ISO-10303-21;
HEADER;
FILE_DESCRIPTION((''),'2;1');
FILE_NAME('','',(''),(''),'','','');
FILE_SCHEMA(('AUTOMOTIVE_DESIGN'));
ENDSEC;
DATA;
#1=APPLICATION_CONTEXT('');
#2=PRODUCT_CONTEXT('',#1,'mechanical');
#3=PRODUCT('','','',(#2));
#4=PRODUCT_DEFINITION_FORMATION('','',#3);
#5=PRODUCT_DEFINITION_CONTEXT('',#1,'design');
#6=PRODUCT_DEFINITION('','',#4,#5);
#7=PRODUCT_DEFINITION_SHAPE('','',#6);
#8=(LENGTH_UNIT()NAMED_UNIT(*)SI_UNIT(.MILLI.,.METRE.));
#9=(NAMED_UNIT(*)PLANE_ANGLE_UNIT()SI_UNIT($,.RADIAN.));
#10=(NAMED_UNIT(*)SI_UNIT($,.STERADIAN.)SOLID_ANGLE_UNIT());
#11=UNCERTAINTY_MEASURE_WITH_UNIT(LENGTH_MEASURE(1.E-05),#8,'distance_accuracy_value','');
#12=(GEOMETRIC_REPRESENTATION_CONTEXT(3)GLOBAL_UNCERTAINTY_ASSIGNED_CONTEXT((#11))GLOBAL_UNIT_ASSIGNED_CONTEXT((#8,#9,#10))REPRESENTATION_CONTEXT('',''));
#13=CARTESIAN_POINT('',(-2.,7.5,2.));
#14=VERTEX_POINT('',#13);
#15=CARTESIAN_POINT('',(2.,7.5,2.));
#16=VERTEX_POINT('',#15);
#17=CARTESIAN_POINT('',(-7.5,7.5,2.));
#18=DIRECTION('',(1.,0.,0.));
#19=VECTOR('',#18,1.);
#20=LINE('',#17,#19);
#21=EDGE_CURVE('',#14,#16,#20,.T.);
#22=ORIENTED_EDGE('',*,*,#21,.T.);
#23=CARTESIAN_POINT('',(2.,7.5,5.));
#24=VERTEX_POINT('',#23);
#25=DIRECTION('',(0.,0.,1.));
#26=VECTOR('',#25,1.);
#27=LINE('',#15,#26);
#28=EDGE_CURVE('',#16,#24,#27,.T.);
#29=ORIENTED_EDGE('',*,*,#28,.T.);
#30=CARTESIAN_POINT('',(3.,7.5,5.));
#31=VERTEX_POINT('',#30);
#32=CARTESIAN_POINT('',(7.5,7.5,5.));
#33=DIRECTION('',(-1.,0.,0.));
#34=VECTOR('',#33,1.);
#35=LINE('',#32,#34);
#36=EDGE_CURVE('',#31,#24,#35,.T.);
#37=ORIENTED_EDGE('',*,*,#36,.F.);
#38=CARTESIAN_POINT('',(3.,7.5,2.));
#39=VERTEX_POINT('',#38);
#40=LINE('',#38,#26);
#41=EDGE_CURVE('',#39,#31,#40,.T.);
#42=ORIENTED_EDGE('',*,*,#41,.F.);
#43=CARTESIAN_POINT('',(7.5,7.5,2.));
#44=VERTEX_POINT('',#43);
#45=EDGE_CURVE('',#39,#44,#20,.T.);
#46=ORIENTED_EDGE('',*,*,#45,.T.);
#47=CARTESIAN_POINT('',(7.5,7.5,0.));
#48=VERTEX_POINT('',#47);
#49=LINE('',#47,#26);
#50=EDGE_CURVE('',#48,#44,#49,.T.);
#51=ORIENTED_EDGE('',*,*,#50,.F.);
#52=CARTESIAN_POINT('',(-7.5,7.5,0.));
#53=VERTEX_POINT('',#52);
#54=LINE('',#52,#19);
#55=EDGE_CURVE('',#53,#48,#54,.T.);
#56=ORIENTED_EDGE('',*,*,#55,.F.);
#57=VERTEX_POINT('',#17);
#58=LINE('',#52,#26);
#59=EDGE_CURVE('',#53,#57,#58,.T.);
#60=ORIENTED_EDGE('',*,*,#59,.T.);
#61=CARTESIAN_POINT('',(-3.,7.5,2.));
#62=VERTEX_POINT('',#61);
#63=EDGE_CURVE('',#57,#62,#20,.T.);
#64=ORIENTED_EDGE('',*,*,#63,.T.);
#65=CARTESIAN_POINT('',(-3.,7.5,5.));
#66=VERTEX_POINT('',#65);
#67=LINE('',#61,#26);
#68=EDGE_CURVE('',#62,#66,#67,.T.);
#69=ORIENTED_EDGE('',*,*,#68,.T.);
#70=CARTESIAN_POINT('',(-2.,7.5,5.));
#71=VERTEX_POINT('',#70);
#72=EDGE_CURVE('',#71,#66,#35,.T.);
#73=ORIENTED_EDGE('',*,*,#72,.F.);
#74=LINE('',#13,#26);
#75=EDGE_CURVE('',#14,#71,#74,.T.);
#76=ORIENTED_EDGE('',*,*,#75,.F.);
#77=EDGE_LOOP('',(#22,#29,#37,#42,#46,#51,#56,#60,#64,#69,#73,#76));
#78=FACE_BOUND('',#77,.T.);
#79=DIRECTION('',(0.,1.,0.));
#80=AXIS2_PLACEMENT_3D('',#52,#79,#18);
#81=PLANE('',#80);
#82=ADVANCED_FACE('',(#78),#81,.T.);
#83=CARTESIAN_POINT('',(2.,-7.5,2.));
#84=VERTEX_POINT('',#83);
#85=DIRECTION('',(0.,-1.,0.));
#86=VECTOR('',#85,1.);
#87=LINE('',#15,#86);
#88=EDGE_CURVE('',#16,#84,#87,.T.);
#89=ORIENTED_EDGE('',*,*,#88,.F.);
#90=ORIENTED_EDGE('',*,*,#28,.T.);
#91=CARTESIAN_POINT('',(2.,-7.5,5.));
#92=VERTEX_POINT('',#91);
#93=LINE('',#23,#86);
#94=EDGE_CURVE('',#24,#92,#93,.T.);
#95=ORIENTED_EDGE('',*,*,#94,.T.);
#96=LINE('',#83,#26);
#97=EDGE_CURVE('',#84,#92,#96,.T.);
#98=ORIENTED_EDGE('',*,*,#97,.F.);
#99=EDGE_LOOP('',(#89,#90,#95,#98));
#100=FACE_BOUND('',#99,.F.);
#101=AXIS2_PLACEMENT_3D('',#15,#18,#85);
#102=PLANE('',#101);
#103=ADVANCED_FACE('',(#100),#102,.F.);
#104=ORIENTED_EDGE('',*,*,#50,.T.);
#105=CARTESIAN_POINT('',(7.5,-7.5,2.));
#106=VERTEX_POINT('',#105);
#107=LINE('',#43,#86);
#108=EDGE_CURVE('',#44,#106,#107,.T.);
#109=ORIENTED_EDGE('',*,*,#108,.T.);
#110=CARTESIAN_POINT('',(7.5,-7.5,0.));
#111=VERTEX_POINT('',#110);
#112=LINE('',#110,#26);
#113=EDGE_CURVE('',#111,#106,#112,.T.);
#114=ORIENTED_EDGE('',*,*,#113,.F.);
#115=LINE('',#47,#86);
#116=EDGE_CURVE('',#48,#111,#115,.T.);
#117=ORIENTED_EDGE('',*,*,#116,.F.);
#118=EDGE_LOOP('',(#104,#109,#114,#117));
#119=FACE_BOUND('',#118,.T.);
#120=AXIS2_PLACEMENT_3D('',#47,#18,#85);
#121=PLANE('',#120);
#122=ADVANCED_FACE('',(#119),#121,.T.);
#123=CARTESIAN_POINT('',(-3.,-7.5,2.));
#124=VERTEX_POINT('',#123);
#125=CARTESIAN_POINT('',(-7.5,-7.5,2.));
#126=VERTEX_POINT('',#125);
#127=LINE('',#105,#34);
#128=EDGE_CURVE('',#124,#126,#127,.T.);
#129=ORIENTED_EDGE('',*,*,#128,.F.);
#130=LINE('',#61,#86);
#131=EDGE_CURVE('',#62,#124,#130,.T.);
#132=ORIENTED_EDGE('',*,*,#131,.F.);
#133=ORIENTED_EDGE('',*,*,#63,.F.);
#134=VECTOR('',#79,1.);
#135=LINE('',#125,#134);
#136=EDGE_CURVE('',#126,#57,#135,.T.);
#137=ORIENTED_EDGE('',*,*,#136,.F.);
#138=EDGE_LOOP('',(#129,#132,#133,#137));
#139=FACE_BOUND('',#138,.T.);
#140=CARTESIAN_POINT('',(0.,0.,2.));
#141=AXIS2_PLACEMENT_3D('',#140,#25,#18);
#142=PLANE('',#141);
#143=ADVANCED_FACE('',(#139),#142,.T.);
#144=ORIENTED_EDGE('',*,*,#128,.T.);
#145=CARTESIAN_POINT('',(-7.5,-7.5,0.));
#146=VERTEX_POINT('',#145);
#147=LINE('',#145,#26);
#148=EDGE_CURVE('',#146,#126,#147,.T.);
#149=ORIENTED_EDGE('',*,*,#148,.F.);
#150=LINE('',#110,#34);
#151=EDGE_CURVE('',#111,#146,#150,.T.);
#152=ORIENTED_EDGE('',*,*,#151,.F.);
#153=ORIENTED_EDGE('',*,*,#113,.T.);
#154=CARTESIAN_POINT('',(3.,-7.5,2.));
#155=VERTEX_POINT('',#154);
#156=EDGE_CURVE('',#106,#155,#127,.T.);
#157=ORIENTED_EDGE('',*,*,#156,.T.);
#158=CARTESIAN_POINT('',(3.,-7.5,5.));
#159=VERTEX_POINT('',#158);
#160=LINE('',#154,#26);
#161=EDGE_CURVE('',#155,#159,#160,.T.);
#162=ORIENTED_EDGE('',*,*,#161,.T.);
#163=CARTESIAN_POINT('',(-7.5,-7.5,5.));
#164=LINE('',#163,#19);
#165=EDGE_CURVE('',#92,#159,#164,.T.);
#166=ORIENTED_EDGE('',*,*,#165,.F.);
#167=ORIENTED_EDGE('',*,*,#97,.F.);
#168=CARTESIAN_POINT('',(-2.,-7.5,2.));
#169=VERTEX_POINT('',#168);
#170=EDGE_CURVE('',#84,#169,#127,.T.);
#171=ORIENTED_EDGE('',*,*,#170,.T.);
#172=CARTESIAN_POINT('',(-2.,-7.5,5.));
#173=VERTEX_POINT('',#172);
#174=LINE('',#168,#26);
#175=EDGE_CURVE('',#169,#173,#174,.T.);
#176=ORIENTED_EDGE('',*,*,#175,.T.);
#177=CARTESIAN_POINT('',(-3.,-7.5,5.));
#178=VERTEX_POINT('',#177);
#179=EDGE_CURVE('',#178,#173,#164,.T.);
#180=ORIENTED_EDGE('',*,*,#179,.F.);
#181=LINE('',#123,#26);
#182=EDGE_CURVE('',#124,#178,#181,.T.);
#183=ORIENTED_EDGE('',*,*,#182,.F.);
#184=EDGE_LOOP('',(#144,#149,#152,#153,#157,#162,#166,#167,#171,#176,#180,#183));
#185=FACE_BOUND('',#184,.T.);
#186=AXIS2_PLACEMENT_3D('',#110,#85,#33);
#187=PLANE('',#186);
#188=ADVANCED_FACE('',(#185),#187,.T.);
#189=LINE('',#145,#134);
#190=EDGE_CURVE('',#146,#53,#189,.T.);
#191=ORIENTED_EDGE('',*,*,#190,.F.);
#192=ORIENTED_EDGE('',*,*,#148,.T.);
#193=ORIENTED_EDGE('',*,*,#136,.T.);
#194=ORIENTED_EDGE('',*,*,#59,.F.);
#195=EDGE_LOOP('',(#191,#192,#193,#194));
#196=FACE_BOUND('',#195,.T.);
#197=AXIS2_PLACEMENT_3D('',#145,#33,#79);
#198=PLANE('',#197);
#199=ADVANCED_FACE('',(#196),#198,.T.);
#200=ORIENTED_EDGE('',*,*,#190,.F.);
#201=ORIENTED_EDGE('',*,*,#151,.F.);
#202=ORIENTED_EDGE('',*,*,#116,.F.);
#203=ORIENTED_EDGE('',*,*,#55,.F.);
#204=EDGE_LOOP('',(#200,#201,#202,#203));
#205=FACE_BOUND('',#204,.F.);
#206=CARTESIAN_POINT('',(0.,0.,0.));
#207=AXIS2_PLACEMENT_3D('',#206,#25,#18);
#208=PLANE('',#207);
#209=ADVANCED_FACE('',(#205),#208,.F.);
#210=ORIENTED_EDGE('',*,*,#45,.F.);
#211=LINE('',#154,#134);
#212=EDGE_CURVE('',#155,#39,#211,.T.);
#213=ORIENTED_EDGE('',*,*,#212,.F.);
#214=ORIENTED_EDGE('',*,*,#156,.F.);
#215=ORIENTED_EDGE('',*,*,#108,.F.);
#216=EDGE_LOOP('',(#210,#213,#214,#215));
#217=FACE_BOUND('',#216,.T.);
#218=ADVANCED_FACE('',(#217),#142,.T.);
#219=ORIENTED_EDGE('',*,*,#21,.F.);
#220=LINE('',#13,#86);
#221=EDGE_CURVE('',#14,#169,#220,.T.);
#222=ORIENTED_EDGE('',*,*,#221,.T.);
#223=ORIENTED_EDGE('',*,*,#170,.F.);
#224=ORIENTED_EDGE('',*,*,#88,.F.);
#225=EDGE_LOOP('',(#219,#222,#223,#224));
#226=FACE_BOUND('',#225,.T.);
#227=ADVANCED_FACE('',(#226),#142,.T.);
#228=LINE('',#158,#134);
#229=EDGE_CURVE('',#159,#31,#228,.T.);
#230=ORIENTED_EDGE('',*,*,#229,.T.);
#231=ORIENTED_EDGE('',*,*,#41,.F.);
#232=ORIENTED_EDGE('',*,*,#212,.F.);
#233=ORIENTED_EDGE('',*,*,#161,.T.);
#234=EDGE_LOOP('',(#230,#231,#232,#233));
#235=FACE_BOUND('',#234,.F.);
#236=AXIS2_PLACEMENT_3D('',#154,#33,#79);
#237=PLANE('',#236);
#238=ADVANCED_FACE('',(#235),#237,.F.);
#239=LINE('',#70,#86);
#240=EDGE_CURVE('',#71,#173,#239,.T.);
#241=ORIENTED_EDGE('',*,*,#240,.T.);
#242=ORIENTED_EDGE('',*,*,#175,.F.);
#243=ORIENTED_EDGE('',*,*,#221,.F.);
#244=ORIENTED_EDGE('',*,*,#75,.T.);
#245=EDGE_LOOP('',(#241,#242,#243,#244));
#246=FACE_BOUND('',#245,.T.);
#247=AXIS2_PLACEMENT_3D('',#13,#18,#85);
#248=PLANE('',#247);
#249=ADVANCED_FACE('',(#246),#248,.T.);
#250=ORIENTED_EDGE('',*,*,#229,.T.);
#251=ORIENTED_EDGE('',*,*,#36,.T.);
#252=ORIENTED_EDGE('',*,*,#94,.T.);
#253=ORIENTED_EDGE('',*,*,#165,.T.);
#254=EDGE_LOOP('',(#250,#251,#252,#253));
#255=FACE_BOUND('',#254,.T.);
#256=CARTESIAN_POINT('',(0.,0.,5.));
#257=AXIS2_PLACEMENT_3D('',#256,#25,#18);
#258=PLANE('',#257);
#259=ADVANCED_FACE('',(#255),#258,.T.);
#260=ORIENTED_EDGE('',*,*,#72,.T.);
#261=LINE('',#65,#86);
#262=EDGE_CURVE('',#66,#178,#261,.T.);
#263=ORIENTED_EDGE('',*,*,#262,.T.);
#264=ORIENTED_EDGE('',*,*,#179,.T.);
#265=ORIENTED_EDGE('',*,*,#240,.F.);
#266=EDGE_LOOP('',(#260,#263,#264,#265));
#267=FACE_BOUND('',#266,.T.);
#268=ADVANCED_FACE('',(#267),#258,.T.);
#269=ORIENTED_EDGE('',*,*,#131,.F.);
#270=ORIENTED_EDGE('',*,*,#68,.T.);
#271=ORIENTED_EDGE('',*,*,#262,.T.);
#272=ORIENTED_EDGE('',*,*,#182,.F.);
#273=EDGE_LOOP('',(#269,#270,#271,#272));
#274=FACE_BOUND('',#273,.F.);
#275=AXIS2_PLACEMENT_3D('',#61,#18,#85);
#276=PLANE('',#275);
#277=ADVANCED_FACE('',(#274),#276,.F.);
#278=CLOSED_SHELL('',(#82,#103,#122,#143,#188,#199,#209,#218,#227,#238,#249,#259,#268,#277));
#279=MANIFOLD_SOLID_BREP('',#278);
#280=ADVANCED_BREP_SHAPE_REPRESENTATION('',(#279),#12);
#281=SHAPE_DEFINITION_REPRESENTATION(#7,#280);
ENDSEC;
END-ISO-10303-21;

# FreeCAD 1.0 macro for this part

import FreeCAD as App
import Part
import Sketcher

doc = App.newDocument("Part")
body = doc.addObject("PartDesign::Body", "Body")

# Sketch on XY plane
sketch1 = body.newObject("Sketcher::SketchObject", "Sketch")
sketch1.AttachmentSupport = (doc.getObject("XY_Plane"), [""])
sketch1.MapMode = "FlatFace"
sketch1.addGeometry([
    Part.LineSegment(App.Vector(8, 8, 0), App.Vector(-8, 8, 0)),
    Part.LineSegment(App.Vector(-8, 8, 0), App.Vector(-8, -8, 0)),
    Part.LineSegment(App.Vector(-8, -8, 0), App.Vector(8, -8, 0)),
    Part.LineSegment(App.Vector(8, -8, 0), App.Vector(8, 8, 0)),
], False)
sketch1.addConstraint([
    Sketcher.Constraint("Coincident", 0, 2, 1, 1),
    Sketcher.Constraint("Coincident", 1, 2, 2, 1),
    Sketcher.Constraint("Coincident", 2, 2, 3, 1),
    Sketcher.Constraint("Coincident", 3, 2, 0, 1),
    Sketcher.Constraint("Horizontal", 0),
    Sketcher.Constraint("Vertical", 1),
    Sketcher.Constraint("Horizontal", 2),
    Sketcher.Constraint("Vertical", 3),
    Sketcher.Constraint("Symmetric", 0, 2, 2, 2, -1, 1),
    Sketcher.Constraint("Equal", 2, 1),
    Sketcher.Constraint("DistanceX", 0, 2, 0, 1, 15.0),
])
pad1 = body.newObject("PartDesign::Pad", "Pad")
pad1.Profile = sketch1
pad1.Length = 2

# Sketch on XY plane
sketch2 = body.newObject("Sketcher::SketchObject", "Sketch001")
sketch2.AttachmentSupport = (doc.getObject("XY_Plane"), [""])
sketch2.MapMode = "FlatFace"
sketch2.AttachmentOffset = App.Placement(App.Vector(0, 0, 2), App.Rotation())
sketch2.addGeometry([
    Part.LineSegment(App.Vector(-3, 7.5, 0), App.Vector(-3, -7.5, 0)),  # 0
    Part.LineSegment(App.Vector(-3, -7.5, 0), App.Vector(-2, -7.5, 0)),  # 1
    Part.LineSegment(App.Vector(-2, -7.5, 0), App.Vector(-2, 7.5, 0)),  # 2
    Part.LineSegment(App.Vector(-2, 7.5, 0), App.Vector(-3, 7.5, 0)),  # 3
    Part.LineSegment(App.Vector(2, 7.5, 0), App.Vector(2, -7.5, 0)),  # 4
    Part.LineSegment(App.Vector(2, -7.5, 0), App.Vector(3, -7.5, 0)),  # 5
    Part.LineSegment(App.Vector(3, -7.5, 0), App.Vector(3, 7.5, 0)),  # 6
    Part.LineSegment(App.Vector(3, 7.5, 0), App.Vector(2, 7.5, 0)),  # 7
], False)
sketch2.addConstraint([
    Sketcher.Constraint("Coincident", 0, 2, 1, 1),
    Sketcher.Constraint("Coincident", 1, 2, 2, 1),
    Sketcher.Constraint("Coincident", 2, 2, 3, 1),
    Sketcher.Constraint("Coincident", 3, 2, 0, 1),
    Sketcher.Constraint("Coincident", 4, 2, 5, 1),
    Sketcher.Constraint("Coincident", 5, 2, 6, 1),
    Sketcher.Constraint("Coincident", 6, 2, 7, 1),
    Sketcher.Constraint("Coincident", 7, 2, 4, 1),
    Sketcher.Constraint("Vertical", 0),
    Sketcher.Constraint("Horizontal", 1),
    Sketcher.Constraint("Vertical", 2),
    Sketcher.Constraint("Horizontal", 3),
    Sketcher.Constraint("Vertical", 4),
    Sketcher.Constraint("Horizontal", 5),
    Sketcher.Constraint("Vertical", 6),
    Sketcher.Constraint("Horizontal", 7),
    Sketcher.Constraint("Symmetric", 2, 2, 4, 2, -1, 1),
    Sketcher.Constraint("Symmetric", 0, 2, 6, 2, -1, 1),
    Sketcher.Constraint("Horizontal", 1, 2, 4, 2),
    Sketcher.Constraint("DistanceX", 1, 1, 1, 2, 1.0),
    Sketcher.Constraint("DistanceY", 0, 2, 0, 1, 15.0),
    Sketcher.Constraint("DistanceX", 0, 2, -1, 1, 3.0),
])
pad2 = body.newObject("PartDesign::Pad", "Pad001")
pad2.Profile = sketch2
pad2.Length = 3

doc.recompute()
